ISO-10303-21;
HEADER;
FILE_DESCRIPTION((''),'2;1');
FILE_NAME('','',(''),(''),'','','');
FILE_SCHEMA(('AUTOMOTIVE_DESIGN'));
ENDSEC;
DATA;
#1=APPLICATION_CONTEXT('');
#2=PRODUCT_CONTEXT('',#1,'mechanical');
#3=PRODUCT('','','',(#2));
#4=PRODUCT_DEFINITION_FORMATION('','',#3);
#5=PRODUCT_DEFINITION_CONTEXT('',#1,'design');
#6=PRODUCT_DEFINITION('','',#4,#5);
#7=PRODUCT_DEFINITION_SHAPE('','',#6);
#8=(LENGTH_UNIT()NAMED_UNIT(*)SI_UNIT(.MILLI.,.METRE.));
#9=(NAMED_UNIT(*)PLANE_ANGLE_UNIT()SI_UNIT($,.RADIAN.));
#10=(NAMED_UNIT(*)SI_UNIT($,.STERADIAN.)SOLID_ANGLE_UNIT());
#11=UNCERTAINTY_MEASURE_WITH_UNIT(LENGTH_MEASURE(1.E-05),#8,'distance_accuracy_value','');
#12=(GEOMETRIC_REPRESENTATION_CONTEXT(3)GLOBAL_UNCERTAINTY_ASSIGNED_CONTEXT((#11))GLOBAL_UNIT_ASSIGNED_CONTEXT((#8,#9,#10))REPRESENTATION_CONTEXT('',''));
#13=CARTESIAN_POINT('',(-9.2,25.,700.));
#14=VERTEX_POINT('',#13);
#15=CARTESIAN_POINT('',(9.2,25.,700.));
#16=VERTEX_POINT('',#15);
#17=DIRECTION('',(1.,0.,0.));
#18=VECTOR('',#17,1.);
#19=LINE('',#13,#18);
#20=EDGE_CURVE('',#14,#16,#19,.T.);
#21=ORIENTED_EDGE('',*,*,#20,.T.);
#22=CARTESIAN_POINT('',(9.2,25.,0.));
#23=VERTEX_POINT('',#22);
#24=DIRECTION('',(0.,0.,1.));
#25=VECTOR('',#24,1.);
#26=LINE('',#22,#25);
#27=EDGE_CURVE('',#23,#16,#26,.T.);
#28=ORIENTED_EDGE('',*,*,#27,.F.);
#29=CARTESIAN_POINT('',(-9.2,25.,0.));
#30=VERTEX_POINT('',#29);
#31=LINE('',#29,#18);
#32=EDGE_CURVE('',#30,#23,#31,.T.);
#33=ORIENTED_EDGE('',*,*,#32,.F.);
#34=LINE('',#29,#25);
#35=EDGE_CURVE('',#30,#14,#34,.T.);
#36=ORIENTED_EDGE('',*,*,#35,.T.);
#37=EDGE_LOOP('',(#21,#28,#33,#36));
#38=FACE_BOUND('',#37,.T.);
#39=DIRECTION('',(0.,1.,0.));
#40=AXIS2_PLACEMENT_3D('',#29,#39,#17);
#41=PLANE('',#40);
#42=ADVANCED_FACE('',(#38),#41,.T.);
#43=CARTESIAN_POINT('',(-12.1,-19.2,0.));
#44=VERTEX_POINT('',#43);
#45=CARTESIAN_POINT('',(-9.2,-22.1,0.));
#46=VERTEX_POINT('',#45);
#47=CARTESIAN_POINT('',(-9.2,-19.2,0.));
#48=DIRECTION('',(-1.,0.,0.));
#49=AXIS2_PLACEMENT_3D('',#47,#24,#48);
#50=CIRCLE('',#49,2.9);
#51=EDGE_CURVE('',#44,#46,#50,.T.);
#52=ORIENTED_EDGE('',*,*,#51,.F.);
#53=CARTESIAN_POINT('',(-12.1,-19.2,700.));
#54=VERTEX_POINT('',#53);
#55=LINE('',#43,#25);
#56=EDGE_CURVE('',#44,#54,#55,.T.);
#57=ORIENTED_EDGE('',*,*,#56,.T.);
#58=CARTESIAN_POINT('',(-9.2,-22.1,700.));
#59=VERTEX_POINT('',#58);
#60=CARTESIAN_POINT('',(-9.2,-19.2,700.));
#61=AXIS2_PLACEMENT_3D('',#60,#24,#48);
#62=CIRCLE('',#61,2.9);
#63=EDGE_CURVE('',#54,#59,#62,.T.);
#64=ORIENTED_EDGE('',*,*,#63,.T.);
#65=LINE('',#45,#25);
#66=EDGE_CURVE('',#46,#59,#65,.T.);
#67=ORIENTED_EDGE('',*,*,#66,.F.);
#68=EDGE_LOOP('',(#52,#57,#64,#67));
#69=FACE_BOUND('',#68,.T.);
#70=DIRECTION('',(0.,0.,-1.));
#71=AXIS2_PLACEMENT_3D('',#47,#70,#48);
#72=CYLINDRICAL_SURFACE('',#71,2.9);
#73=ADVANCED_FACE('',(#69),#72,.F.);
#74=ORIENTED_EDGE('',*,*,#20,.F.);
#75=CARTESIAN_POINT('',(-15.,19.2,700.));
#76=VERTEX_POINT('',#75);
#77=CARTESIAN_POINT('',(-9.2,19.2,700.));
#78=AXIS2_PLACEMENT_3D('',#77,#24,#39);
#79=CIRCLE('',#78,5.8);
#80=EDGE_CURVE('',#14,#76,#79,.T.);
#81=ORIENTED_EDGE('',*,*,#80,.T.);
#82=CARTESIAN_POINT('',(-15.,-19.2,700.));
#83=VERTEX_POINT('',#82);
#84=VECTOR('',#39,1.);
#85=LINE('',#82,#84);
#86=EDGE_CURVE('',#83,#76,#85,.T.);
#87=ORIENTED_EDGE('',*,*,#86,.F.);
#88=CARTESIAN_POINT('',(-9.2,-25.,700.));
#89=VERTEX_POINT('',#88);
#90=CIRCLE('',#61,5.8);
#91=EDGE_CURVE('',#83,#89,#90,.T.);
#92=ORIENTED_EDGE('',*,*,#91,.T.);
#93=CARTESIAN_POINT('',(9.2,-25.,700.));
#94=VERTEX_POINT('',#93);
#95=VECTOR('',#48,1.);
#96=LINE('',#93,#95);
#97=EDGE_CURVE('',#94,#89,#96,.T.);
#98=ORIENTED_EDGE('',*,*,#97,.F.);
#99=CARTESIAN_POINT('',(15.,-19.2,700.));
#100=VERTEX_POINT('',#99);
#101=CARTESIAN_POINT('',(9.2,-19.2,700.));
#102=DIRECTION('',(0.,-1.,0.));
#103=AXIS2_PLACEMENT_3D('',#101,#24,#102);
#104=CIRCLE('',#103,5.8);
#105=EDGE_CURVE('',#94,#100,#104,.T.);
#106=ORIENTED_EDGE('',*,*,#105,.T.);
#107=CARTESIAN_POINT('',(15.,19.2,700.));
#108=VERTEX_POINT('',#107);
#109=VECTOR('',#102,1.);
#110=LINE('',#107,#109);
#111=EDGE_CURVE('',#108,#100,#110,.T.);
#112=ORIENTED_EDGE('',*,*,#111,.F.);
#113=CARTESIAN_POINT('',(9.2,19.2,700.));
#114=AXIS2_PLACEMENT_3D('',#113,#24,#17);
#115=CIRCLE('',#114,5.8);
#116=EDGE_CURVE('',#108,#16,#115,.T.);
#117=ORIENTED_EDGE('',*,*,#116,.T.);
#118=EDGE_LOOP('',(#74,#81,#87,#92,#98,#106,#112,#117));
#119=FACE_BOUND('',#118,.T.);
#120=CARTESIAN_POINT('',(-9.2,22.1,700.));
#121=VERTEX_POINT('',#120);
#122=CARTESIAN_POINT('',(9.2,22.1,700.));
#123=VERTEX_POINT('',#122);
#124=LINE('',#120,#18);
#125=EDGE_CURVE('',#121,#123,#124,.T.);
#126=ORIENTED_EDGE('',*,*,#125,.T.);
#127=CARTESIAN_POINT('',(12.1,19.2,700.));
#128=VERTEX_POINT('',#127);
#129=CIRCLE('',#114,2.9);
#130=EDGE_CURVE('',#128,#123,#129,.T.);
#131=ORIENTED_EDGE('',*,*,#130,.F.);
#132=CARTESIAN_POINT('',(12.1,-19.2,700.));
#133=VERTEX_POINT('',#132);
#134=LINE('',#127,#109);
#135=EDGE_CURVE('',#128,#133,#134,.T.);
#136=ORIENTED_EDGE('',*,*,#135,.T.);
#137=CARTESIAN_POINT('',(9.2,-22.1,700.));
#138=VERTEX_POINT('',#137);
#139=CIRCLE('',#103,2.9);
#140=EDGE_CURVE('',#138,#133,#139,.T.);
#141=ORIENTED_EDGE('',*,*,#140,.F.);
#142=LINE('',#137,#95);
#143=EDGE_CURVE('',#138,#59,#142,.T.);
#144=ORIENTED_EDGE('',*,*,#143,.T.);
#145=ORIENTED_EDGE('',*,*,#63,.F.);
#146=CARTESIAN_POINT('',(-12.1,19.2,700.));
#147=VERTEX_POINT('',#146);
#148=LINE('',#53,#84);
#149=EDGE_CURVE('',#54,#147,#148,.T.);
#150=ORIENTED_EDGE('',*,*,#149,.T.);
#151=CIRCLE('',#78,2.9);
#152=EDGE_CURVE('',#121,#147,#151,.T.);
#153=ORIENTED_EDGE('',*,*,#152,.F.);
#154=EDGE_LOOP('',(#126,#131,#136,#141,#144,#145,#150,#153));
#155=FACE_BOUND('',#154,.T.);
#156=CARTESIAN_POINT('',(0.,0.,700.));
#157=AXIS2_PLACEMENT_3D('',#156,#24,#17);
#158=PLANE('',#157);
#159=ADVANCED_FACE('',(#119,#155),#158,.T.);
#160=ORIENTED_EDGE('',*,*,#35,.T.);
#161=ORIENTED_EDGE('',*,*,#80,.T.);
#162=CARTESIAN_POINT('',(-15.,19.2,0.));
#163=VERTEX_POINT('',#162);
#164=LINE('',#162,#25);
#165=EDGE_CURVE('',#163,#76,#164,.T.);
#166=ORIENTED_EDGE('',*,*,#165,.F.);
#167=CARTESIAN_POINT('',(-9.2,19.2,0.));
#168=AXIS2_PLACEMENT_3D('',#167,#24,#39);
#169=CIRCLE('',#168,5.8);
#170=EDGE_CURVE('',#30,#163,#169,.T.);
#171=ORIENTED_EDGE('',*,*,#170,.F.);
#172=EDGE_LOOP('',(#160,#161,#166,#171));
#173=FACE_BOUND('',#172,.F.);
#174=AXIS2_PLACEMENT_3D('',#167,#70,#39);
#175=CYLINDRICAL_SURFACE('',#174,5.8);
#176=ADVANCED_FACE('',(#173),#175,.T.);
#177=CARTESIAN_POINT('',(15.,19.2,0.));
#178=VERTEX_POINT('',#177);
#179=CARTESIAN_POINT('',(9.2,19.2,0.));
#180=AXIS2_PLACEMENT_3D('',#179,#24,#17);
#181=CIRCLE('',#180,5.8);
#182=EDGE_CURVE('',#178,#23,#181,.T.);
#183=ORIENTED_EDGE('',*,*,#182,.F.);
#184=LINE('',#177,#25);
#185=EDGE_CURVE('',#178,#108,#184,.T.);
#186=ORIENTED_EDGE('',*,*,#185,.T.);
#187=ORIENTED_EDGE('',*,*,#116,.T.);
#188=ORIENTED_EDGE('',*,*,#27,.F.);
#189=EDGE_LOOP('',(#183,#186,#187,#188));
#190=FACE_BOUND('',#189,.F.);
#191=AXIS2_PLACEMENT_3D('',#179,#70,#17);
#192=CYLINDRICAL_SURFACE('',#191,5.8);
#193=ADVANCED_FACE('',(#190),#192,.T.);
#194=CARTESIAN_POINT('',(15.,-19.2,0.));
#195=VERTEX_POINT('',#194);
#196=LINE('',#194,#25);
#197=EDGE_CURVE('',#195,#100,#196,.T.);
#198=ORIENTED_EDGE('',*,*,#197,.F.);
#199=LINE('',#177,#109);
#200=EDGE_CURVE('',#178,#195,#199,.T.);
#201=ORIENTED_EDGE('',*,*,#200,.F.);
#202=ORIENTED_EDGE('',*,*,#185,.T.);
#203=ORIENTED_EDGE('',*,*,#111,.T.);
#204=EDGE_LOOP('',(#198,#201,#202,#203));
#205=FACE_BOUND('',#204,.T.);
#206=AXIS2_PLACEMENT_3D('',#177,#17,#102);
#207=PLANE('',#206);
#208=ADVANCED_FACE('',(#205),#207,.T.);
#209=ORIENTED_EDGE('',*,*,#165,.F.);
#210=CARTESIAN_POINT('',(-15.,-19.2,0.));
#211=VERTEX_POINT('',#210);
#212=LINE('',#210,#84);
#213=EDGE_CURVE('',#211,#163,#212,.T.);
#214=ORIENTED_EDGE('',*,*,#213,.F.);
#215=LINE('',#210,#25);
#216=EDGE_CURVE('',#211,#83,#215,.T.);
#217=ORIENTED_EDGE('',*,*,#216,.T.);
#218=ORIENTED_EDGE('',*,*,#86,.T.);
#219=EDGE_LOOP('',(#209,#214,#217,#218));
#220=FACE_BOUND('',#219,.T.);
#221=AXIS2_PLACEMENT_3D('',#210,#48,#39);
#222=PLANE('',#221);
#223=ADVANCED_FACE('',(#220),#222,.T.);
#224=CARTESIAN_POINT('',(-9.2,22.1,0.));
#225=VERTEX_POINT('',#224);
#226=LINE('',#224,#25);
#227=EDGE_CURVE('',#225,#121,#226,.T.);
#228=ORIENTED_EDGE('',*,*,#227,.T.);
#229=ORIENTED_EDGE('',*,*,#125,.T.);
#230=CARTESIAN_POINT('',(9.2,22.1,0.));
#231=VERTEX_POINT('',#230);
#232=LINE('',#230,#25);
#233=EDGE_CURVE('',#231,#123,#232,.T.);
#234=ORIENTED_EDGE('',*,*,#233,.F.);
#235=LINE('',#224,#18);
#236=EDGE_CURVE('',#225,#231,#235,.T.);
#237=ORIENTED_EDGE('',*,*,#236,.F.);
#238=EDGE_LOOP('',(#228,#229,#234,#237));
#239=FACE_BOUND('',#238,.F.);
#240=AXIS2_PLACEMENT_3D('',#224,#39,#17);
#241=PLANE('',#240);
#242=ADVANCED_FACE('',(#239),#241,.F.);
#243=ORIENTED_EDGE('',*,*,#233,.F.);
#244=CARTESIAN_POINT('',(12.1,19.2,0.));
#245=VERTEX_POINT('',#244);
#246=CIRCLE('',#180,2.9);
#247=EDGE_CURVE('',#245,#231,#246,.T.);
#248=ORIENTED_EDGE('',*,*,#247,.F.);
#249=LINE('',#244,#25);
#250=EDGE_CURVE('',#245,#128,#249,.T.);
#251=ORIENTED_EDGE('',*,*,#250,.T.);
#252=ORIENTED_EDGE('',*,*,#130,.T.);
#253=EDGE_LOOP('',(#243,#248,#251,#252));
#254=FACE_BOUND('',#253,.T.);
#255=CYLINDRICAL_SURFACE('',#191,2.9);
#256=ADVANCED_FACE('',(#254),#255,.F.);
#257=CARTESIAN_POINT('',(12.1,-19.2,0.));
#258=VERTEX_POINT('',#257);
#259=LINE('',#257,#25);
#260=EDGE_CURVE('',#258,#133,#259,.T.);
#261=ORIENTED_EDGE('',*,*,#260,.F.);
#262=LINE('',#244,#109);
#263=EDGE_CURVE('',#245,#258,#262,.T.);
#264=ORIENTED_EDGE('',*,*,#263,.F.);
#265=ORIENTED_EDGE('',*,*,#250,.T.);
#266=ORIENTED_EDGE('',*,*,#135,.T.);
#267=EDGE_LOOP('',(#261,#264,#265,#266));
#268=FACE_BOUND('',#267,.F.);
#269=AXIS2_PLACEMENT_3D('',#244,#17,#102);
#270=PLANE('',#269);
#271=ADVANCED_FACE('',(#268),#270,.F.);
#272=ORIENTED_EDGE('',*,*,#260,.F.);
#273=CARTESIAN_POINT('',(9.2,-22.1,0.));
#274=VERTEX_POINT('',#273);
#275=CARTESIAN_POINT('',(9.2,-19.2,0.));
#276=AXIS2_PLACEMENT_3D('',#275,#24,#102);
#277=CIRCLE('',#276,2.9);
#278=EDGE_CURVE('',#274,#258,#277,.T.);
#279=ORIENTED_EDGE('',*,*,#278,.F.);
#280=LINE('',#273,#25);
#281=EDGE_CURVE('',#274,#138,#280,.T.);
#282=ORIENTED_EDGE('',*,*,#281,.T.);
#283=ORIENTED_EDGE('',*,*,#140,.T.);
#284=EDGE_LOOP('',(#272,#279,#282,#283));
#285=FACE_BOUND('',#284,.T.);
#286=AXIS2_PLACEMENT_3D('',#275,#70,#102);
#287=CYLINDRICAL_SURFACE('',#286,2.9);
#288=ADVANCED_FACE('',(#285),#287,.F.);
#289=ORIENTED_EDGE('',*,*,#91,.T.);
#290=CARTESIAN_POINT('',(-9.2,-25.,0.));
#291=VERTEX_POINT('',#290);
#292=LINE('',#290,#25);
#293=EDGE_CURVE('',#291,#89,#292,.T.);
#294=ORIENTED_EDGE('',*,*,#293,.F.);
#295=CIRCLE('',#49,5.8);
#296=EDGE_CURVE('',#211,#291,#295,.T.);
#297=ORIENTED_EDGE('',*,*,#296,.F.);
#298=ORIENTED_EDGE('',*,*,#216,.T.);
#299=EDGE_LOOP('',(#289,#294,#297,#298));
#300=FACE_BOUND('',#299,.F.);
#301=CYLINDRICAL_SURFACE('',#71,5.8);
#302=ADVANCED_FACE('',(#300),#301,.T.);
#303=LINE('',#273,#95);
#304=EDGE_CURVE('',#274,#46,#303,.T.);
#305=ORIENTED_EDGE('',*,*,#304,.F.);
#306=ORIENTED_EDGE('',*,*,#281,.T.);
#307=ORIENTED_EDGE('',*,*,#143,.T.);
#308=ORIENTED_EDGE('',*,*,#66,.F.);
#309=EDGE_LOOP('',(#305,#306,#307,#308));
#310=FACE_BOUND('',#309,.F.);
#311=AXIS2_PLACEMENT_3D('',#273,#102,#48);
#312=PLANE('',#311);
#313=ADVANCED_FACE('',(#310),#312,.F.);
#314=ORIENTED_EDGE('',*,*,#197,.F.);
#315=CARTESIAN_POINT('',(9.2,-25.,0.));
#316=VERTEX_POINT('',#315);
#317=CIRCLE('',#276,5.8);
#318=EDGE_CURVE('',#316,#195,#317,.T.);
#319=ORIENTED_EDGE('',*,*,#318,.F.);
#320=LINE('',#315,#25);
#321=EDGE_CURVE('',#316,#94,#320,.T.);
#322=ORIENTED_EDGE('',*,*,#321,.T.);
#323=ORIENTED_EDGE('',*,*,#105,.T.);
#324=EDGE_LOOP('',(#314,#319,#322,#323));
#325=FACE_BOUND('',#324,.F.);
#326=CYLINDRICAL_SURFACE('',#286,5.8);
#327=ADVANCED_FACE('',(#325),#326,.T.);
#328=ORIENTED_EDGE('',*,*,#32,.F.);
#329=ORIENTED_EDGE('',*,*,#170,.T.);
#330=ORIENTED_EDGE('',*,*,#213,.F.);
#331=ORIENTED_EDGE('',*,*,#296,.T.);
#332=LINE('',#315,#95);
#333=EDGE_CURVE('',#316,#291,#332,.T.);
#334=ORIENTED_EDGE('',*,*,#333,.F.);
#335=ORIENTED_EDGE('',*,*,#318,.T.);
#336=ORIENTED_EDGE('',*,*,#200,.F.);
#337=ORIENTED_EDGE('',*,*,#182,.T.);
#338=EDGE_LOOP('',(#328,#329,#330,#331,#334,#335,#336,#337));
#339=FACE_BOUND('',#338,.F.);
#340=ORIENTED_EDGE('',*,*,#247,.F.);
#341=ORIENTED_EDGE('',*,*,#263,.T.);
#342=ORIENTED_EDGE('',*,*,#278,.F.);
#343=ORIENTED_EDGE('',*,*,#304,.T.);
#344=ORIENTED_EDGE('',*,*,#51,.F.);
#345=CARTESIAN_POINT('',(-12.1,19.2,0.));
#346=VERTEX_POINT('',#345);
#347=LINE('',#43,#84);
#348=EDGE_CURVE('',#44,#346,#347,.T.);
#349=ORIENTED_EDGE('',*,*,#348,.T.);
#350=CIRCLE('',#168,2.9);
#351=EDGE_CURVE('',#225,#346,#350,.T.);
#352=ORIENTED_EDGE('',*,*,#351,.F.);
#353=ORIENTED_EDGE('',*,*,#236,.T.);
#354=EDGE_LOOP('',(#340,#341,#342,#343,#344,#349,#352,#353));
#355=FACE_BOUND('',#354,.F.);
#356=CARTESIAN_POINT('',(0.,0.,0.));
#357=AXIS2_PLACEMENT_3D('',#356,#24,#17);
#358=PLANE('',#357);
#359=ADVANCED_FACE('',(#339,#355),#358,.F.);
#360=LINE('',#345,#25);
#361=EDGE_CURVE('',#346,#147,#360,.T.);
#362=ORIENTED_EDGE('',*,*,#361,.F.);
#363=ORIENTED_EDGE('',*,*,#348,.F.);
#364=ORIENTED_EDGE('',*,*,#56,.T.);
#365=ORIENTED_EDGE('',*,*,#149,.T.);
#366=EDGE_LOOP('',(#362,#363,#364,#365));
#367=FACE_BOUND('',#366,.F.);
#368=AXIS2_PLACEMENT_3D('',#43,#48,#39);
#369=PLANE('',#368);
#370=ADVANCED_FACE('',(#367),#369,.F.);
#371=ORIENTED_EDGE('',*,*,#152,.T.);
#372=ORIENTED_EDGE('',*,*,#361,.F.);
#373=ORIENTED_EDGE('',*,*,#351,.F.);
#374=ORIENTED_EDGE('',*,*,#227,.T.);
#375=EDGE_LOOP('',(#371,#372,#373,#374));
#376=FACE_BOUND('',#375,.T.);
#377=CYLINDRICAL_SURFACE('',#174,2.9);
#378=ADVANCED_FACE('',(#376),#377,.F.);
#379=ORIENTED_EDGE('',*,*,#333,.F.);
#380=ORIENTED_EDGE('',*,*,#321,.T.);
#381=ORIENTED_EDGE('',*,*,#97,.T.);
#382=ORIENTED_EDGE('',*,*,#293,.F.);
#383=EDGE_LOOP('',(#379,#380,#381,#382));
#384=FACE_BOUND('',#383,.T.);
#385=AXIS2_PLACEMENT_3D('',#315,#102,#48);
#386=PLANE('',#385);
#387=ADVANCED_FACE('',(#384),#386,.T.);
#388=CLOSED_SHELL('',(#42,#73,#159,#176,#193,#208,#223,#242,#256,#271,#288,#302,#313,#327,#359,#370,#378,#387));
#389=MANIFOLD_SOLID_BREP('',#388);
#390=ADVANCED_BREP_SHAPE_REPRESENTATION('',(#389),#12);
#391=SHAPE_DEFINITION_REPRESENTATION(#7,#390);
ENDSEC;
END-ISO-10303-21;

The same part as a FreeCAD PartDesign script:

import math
import FreeCAD as App
import Part
import Sketcher

V = App.Vector

doc = App.newDocument("Part")
params = doc.addObject("Spreadsheet::Sheet", "Params")
for row, (alias, value) in enumerate([
    ("sketch1_radius", "5.8 mm"),
    ("sketch1_radius2", "2.9 mm"),
    ("pad1_length", "700 mm"),
], start=1):
    params.set(f"A{row}", alias)
    params.set(f"B{row}", "=" + value)
    params.setAlias(f"B{row}", alias)

body = doc.addObject("PartDesign::Body", "Body")

# Sketch on XY plane
sketch1 = body.newObject("Sketcher::SketchObject", "Sketch")
sketch1.AttachmentSupport = (doc.getObject("XY_Plane"), [""])
sketch1.MapMode = "FlatFace"
sketch1.addGeometry(Part.LineSegment(V(9.2, 25, 0), V(-9.2, 25, 0)), False)
sketch1.addGeometry(Part.ArcOfCircle(Part.Circle(V(-9.2, 19.2, 0), V(0, 0, 1), 5.8), math.radians(90), math.radians(180)), False)
sketch1.addGeometry(Part.LineSegment(V(-15, 19.2, 0), V(-15, -19.2, 0)), False)
sketch1.addGeometry(Part.ArcOfCircle(Part.Circle(V(-9.2, -19.2, 0), V(0, 0, 1), 5.8), math.radians(180), math.radians(270)), False)
sketch1.addGeometry(Part.LineSegment(V(-9.2, -25, 0), V(9.2, -25, 0)), False)
sketch1.addGeometry(Part.ArcOfCircle(Part.Circle(V(9.2, -19.2, 0), V(0, 0, 1), 5.8), math.radians(-90), math.radians(0)), False)
sketch1.addGeometry(Part.LineSegment(V(15, -19.2, 0), V(15, 19.2, 0)), False)
sketch1.addGeometry(Part.ArcOfCircle(Part.Circle(V(9.2, 19.2, 0), V(0, 0, 1), 5.8), math.radians(0), math.radians(90)), False)
sketch1.addGeometry(Part.ArcOfCircle(Part.Circle(V(-9.2, 19.2, 0), V(0, 0, 1), 2.9), math.radians(90), math.radians(180)), False)
sketch1.addGeometry(Part.LineSegment(V(-9.2, 22.1, 0), V(9.2, 22.1, 0)), False)
sketch1.addGeometry(Part.ArcOfCircle(Part.Circle(V(9.2, 19.2, 0), V(0, 0, 1), 2.9), math.radians(0), math.radians(90)), False)
sketch1.addGeometry(Part.LineSegment(V(12.1, 19.2, 0), V(12.1, -19.2, 0)), False)
sketch1.addGeometry(Part.ArcOfCircle(Part.Circle(V(9.2, -19.2, 0), V(0, 0, 1), 2.9), math.radians(-90), math.radians(0)), False)
sketch1.addGeometry(Part.LineSegment(V(9.2, -22.1, 0), V(-9.2, -22.1, 0)), False)
sketch1.addGeometry(Part.ArcOfCircle(Part.Circle(V(-9.2, -19.2, 0), V(0, 0, 1), 2.9), math.radians(180), math.radians(270)), False)
sketch1.addGeometry(Part.LineSegment(V(-12.1, -19.2, 0), V(-12.1, 19.2, 0)), False)
sketch1.addConstraint(Sketcher.Constraint("Tangent", 0, 2, 1, 1))
sketch1.addConstraint(Sketcher.Constraint("Tangent", 1, 2, 2, 1))
sketch1.addConstraint(Sketcher.Constraint("Tangent", 2, 2, 3, 1))
sketch1.addConstraint(Sketcher.Constraint("Tangent", 3, 2, 4, 1))
sketch1.addConstraint(Sketcher.Constraint("Tangent", 4, 2, 5, 1))
sketch1.addConstraint(Sketcher.Constraint("Tangent", 5, 2, 6, 1))
sketch1.addConstraint(Sketcher.Constraint("Tangent", 6, 2, 7, 1))
sketch1.addConstraint(Sketcher.Constraint("Tangent", 7, 2, 0, 1))
sketch1.addConstraint(Sketcher.Constraint("Tangent", 8, 1, 9, 1))
sketch1.addConstraint(Sketcher.Constraint("Tangent", 9, 2, 10, 2))
sketch1.addConstraint(Sketcher.Constraint("Tangent", 10, 1, 11, 1))
sketch1.addConstraint(Sketcher.Constraint("Tangent", 11, 2, 12, 2))
sketch1.addConstraint(Sketcher.Constraint("Tangent", 12, 1, 13, 1))
sketch1.addConstraint(Sketcher.Constraint("Tangent", 13, 2, 14, 2))
sketch1.addConstraint(Sketcher.Constraint("Tangent", 14, 1, 15, 1))
sketch1.addConstraint(Sketcher.Constraint("Tangent", 15, 2, 8, 2))
sketch1.addConstraint(Sketcher.Constraint("Horizontal", 0))
sketch1.addConstraint(Sketcher.Constraint("Vertical", 2))
sketch1.addConstraint(Sketcher.Constraint("Horizontal", 4))
sketch1.addConstraint(Sketcher.Constraint("Vertical", 6))
sketch1.addConstraint(Sketcher.Constraint("Horizontal", 9))
sketch1.addConstraint(Sketcher.Constraint("Vertical", 11))
sketch1.addConstraint(Sketcher.Constraint("Horizontal", 13))
sketch1.addConstraint(Sketcher.Constraint("Vertical", 15))
sketch1.addConstraint(Sketcher.Constraint("Coincident", 8, 3, 1, 3))
sketch1.addConstraint(Sketcher.Constraint("Coincident", 10, 3, 7, 3))
sketch1.addConstraint(Sketcher.Constraint("Coincident", 12, 3, 5, 3))
sketch1.addConstraint(Sketcher.Constraint("Equal", 1, 3))
sketch1.addConstraint(Sketcher.Constraint("Equal", 3, 5))
sketch1.addConstraint(Sketcher.Constraint("Equal", 5, 7))
sketch1.addConstraint(Sketcher.Constraint("Equal", 12, 14))
sketch1.addConstraint(Sketcher.Constraint("Symmetric", 1, 3, 5, 3, -1, 1))
sketch1.addConstraint(Sketcher.Constraint("Radius", 1, 5.8))
sketch1.addConstraint(Sketcher.Constraint("Radius", 8, 2.9))
sketch1.addConstraint(Sketcher.Constraint("DistanceY", -1, 1, 0, 2, 25.0))
sketch1.addConstraint(Sketcher.Constraint("DistanceX", 1, 2, -1, 1, 15.0))
sketch1.setExpression("Constraints[32]", "Params.sketch1_radius")
sketch1.setExpression("Constraints[33]", "Params.sketch1_radius2")
pad1 = body.newObject("PartDesign::Pad", "Pad")
pad1.Profile = sketch1
pad1.setExpression("Length", "Params.pad1_length")

doc.recompute()
